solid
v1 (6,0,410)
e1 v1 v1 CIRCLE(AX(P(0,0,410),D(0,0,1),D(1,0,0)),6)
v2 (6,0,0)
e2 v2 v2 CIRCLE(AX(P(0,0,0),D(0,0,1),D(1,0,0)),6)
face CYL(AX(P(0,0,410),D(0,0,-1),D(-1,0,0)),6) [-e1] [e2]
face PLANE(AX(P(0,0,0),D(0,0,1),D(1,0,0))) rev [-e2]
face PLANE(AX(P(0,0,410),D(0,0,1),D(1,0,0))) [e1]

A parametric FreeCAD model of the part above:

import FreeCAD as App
import Part
import Sketcher
from FreeCAD import Vector

doc = App.newDocument("Part")
body = doc.addObject("PartDesign::Body", "Body")

sketch1 = body.newObject("Sketcher::SketchObject", "Sketch")
sketch1.AttachmentSupport = (doc.getObject("XY_Plane"), [""])
sketch1.MapMode = "FlatFace"
sketch1.addGeometry(Part.Circle(Vector(0, 0, 0), Vector(0, 0, 1), 6), False)
sketch1.addConstraint([
    Sketcher.Constraint("Coincident", 0, 3, -1, 1),
    Sketcher.Constraint("Diameter", 0, 12.0),
])
pad1 = body.newObject("PartDesign::Pad", "Pad")
pad1.Profile = sketch1
pad1.Length = 410

doc.recompute()
